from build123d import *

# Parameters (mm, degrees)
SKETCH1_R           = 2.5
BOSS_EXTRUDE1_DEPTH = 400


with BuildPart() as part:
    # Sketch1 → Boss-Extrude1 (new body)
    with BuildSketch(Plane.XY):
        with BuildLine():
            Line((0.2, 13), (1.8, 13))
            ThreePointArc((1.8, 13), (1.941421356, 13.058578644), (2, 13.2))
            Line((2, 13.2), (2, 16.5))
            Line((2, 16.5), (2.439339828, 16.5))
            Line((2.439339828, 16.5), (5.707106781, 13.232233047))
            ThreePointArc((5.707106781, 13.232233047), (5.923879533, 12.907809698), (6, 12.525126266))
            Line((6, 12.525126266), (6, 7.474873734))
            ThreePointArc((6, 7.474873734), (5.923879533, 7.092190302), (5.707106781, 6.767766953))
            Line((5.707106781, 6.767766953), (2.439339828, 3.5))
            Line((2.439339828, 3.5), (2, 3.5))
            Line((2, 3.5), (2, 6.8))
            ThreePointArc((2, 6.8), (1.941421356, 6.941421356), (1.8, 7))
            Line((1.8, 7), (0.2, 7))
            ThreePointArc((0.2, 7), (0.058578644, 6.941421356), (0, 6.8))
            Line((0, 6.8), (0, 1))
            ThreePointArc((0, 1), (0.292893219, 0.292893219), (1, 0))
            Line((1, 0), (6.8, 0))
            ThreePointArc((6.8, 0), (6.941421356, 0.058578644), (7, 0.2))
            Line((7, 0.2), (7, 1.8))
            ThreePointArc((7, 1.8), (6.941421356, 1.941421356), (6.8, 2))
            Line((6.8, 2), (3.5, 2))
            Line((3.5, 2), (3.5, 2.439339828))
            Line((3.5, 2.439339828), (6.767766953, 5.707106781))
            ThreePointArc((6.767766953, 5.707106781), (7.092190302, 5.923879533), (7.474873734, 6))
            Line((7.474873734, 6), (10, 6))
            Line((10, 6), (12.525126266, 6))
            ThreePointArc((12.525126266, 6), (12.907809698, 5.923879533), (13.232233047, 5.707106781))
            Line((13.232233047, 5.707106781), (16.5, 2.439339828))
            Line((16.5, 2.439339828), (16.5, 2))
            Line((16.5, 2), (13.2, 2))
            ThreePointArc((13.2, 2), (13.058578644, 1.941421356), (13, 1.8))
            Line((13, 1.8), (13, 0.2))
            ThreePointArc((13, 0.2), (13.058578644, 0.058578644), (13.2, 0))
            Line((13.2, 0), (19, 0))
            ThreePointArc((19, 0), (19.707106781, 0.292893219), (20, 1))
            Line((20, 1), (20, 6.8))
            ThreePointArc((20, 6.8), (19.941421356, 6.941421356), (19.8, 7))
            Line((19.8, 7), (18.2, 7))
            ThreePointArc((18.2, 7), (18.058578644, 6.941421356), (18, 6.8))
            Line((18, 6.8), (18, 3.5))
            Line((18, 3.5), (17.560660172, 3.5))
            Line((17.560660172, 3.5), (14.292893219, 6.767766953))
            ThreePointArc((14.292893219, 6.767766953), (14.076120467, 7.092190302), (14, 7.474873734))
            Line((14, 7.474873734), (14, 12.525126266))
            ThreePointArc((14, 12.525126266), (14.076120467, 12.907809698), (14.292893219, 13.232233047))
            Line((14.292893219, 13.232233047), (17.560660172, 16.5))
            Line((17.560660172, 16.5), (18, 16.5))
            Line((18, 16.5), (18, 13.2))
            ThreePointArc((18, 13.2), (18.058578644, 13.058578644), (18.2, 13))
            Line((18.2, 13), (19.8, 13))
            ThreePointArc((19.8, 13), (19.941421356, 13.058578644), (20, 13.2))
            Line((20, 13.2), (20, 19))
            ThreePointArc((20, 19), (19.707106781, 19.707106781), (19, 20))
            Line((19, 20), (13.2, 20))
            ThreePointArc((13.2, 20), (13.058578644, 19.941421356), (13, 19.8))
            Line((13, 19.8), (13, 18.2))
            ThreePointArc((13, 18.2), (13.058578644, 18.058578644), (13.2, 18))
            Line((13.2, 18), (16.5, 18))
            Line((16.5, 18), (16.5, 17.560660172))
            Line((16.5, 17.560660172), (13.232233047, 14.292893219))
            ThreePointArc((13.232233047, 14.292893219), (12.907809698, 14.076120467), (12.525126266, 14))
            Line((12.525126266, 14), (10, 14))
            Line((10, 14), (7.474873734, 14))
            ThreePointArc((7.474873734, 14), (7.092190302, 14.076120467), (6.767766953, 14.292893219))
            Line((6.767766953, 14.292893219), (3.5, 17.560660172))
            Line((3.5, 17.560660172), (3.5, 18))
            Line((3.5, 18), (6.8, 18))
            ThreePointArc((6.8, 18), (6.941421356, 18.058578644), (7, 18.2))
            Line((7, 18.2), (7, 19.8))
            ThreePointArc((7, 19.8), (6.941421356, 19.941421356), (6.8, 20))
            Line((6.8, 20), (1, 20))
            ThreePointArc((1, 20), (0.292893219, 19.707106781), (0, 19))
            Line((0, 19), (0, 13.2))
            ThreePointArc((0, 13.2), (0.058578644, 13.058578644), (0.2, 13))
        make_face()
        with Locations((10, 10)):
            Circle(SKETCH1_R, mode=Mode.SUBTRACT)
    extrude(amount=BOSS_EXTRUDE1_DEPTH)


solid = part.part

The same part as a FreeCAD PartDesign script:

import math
import FreeCAD as App
import Part
import Sketcher
Q = App.Units.Quantity

doc = App.newDocument("Part")
params = doc.addObject("Spreadsheet::Sheet", "Params")
for row, (alias, value) in enumerate([
    ("sketch1_diameter", "5 mm"),
    ("sketch1_radius", "1 mm"),
    ("sketch1_radius2", "0.2 mm"),
    ("sketch1_width", "1.6 mm"),
    ("sketch1_width2", "5.8 mm"),
    ("pad1_length", "400 mm"),
], start=1):
    params.set(f"A{row}", alias)
    params.set(f"B{row}", "=" + value)
    params.setAlias(f"B{row}", alias)

body = doc.addObject("PartDesign::Body", "Body")

# Sketch on XY plane
sketch1 = doc.addObject("Sketcher::SketchObject", "Sketch")
body.addObject(sketch1)
sketch1.AttachmentSupport = (doc.XY_Plane, [""])
sketch1.MapMode = "FlatFace"
sketch1.addGeometry([
    Part.LineSegment(App.Vector(0.2, 13, 0), App.Vector(1.8, 13, 0)),  # 0
    Part.ArcOfCircle(Part.Circle(App.Vector(1.8, 13.2, 0), App.Vector(0, 0, 1), 0.2), math.radians(-90), math.radians(0)),  # 1
    Part.LineSegment(App.Vector(2, 13.2, 0), App.Vector(2, 16.5, 0)),  # 2
    Part.LineSegment(App.Vector(2, 16.5, 0), App.Vector(2.44, 16.5, 0)),  # 3
    Part.LineSegment(App.Vector(2.44, 16.5, 0), App.Vector(5.71, 13.23, 0)),  # 4
    Part.ArcOfCircle(Part.Circle(App.Vector(5, 12.53, 0), App.Vector(0, 0, 1), 1), math.radians(0), math.radians(45)),  # 5
    Part.LineSegment(App.Vector(6, 12.53, 0), App.Vector(6, 7.47, 0)),  # 6
    Part.ArcOfCircle(Part.Circle(App.Vector(5, 7.47, 0), App.Vector(0, 0, 1), 1), math.radians(-45), math.radians(0)),  # 7
    Part.LineSegment(App.Vector(5.71, 6.77, 0), App.Vector(2.44, 3.5, 0)),  # 8
    Part.LineSegment(App.Vector(2.44, 3.5, 0), App.Vector(2, 3.5, 0)),  # 9
    Part.LineSegment(App.Vector(2, 3.5, 0), App.Vector(2, 6.8, 0)),  # 10
    Part.ArcOfCircle(Part.Circle(App.Vector(1.8, 6.8, 0), App.Vector(0, 0, 1), 0.2), math.radians(0), math.radians(90)),  # 11
    Part.LineSegment(App.Vector(1.8, 7, 0), App.Vector(0.2, 7, 0)),  # 12
    Part.ArcOfCircle(Part.Circle(App.Vector(0.2, 6.8, 0), App.Vector(0, 0, 1), 0.2), math.radians(90), math.radians(180)),  # 13
    Part.LineSegment(App.Vector(0, 6.8, 0), App.Vector(0, 1, 0)),  # 14
    Part.ArcOfCircle(Part.Circle(App.Vector(1, 1, 0), App.Vector(0, 0, 1), 1), math.radians(-180), math.radians(-90)),  # 15
    Part.LineSegment(App.Vector(1, 0, 0), App.Vector(6.8, 0, 0)),  # 16
    Part.ArcOfCircle(Part.Circle(App.Vector(6.8, 0.2, 0), App.Vector(0, 0, 1), 0.2), math.radians(-90), math.radians(0)),  # 17
    Part.LineSegment(App.Vector(7, 0.2, 0), App.Vector(7, 1.8, 0)),  # 18
    Part.ArcOfCircle(Part.Circle(App.Vector(6.8, 1.8, 0), App.Vector(0, 0, 1), 0.2), math.radians(0), math.radians(90)),  # 19
    Part.LineSegment(App.Vector(6.8, 2, 0), App.Vector(3.5, 2, 0)),  # 20
    Part.LineSegment(App.Vector(3.5, 2, 0), App.Vector(3.5, 2.44, 0)),  # 21
    Part.LineSegment(App.Vector(3.5, 2.44, 0), App.Vector(6.77, 5.71, 0)),  # 22
    Part.ArcOfCircle(Part.Circle(App.Vector(7.47, 5, 0), App.Vector(0, 0, 1), 1), math.radians(90), math.radians(135)),  # 23
    Part.LineSegment(App.Vector(7.47, 6, 0), App.Vector(12.53, 6, 0)),  # 24
    Part.ArcOfCircle(Part.Circle(App.Vector(12.53, 5, 0), App.Vector(0, 0, 1), 1), math.radians(45), math.radians(90)),  # 25
    Part.LineSegment(App.Vector(13.23, 5.71, 0), App.Vector(16.5, 2.44, 0)),  # 26
    Part.LineSegment(App.Vector(16.5, 2.44, 0), App.Vector(16.5, 2, 0)),  # 27
    Part.LineSegment(App.Vector(16.5, 2, 0), App.Vector(13.2, 2, 0)),  # 28
    Part.ArcOfCircle(Part.Circle(App.Vector(13.2, 1.8, 0), App.Vector(0, 0, 1), 0.2), math.radians(90), math.radians(180)),  # 29
    Part.LineSegment(App.Vector(13, 1.8, 0), App.Vector(13, 0.2, 0)),  # 30
    Part.ArcOfCircle(Part.Circle(App.Vector(13.2, 0.2, 0), App.Vector(0, 0, 1), 0.2), math.radians(-180), math.radians(-90)),  # 31
    Part.LineSegment(App.Vector(13.2, 0, 0), App.Vector(19, 0, 0)),  # 32
    Part.ArcOfCircle(Part.Circle(App.Vector(19, 1, 0), App.Vector(0, 0, 1), 1), math.radians(-90), math.radians(0)),  # 33
    Part.LineSegment(App.Vector(20, 1, 0), App.Vector(20, 6.8, 0)),  # 34
    Part.ArcOfCircle(Part.Circle(App.Vector(19.8, 6.8, 0), App.Vector(0, 0, 1), 0.2), math.radians(0), math.radians(90)),  # 35
    Part.LineSegment(App.Vector(19.8, 7, 0), App.Vector(18.2, 7, 0)),  # 36
    Part.ArcOfCircle(Part.Circle(App.Vector(18.2, 6.8, 0), App.Vector(0, 0, 1), 0.2), math.radians(90), math.radians(180)),  # 37
    Part.LineSegment(App.Vector(18, 6.8, 0), App.Vector(18, 3.5, 0)),  # 38
    Part.LineSegment(App.Vector(18, 3.5, 0), App.Vector(17.56, 3.5, 0)),  # 39
    Part.LineSegment(App.Vector(17.56, 3.5, 0), App.Vector(14.29, 6.77, 0)),  # 40
    Part.ArcOfCircle(Part.Circle(App.Vector(15, 7.47, 0), App.Vector(0, 0, 1), 1), math.radians(180), math.radians(225)),  # 41
    Part.LineSegment(App.Vector(14, 7.47, 0), App.Vector(14, 12.53, 0)),  # 42
    Part.ArcOfCircle(Part.Circle(App.Vector(15, 12.53, 0), App.Vector(0, 0, 1), 1), math.radians(135), math.radians(180)),  # 43
    Part.LineSegment(App.Vector(14.29, 13.23, 0), App.Vector(17.56, 16.5, 0)),  # 44
    Part.LineSegment(App.Vector(17.56, 16.5, 0), App.Vector(18, 16.5, 0)),  # 45
    Part.LineSegment(App.Vector(18, 16.5, 0), App.Vector(18, 13.2, 0)),  # 46
    Part.ArcOfCircle(Part.Circle(App.Vector(18.2, 13.2, 0), App.Vector(0, 0, 1), 0.2), math.radians(-180), math.radians(-90)),  # 47
    Part.LineSegment(App.Vector(18.2, 13, 0), App.Vector(19.8, 13, 0)),  # 48
    Part.ArcOfCircle(Part.Circle(App.Vector(19.8, 13.2, 0), App.Vector(0, 0, 1), 0.2), math.radians(-90), math.radians(0)),  # 49
    Part.LineSegment(App.Vector(20, 13.2, 0), App.Vector(20, 19, 0)),  # 50
    Part.ArcOfCircle(Part.Circle(App.Vector(19, 19, 0), App.Vector(0, 0, 1), 1), math.radians(0), math.radians(90)),  # 51
    Part.LineSegment(App.Vector(19, 20, 0), App.Vector(13.2, 20, 0)),  # 52
    Part.ArcOfCircle(Part.Circle(App.Vector(13.2, 19.8, 0), App.Vector(0, 0, 1), 0.2), math.radians(90), math.radians(180)),  # 53
    Part.LineSegment(App.Vector(13, 19.8, 0), App.Vector(13, 18.2, 0)),  # 54
    Part.ArcOfCircle(Part.Circle(App.Vector(13.2, 18.2, 0), App.Vector(0, 0, 1), 0.2), math.radians(-180), math.radians(-90)),  # 55
    Part.LineSegment(App.Vector(13.2, 18, 0), App.Vector(16.5, 18, 0)),  # 56
    Part.LineSegment(App.Vector(16.5, 18, 0), App.Vector(16.5, 17.56, 0)),  # 57
    Part.LineSegment(App.Vector(16.5, 17.56, 0), App.Vector(13.23, 14.29, 0)),  # 58
    Part.ArcOfCircle(Part.Circle(App.Vector(12.53, 15, 0), App.Vector(0, 0, 1), 1), math.radians(-90), math.radians(-45)),  # 59
    Part.LineSegment(App.Vector(12.53, 14, 0), App.Vector(7.47, 14, 0)),  # 60
    Part.ArcOfCircle(Part.Circle(App.Vector(7.47, 15, 0), App.Vector(0, 0, 1), 1), math.radians(-135), math.radians(-90)),  # 61
    Part.LineSegment(App.Vector(6.77, 14.29, 0), App.Vector(3.5, 17.56, 0)),  # 62
    Part.LineSegment(App.Vector(3.5, 17.56, 0), App.Vector(3.5, 18, 0)),  # 63
    Part.LineSegment(App.Vector(3.5, 18, 0), App.Vector(6.8, 18, 0)),  # 64
    Part.ArcOfCircle(Part.Circle(App.Vector(6.8, 18.2, 0), App.Vector(0, 0, 1), 0.2), math.radians(-90), math.radians(0)),  # 65
    Part.LineSegment(App.Vector(7, 18.2, 0), App.Vector(7, 19.8, 0)),  # 66
    Part.ArcOfCircle(Part.Circle(App.Vector(6.8, 19.8, 0), App.Vector(0, 0, 1), 0.2), math.radians(0), math.radians(90)),  # 67
    Part.LineSegment(App.Vector(6.8, 20, 0), App.Vector(1, 20, 0)),  # 68
    Part.ArcOfCircle(Part.Circle(App.Vector(1, 19, 0), App.Vector(0, 0, 1), 1), math.radians(90), math.radians(180)),  # 69
    Part.LineSegment(App.Vector(0, 19, 0), App.Vector(0, 13.2, 0)),  # 70
    Part.ArcOfCircle(Part.Circle(App.Vector(0.2, 13.2, 0), App.Vector(0, 0, 1), 0.2), math.radians(-180), math.radians(-90)),  # 71
    Part.Circle(App.Vector(10, 10, 0), App.Vector(0, 0, 1), 2.5),  # 72
], False)
sketch1.addConstraint([
    Sketcher.Constraint("Tangent", 0, 2, 1, 1),
    Sketcher.Constraint("Tangent", 1, 2, 2, 1),
    Sketcher.Constraint("Coincident", 2, 2, 3, 1),
    Sketcher.Constraint("Coincident", 3, 2, 4, 1),
    Sketcher.Constraint("Tangent", 4, 2, 5, 2),
    Sketcher.Constraint("Tangent", 5, 1, 6, 1),
    Sketcher.Constraint("Tangent", 6, 2, 7, 2),
    Sketcher.Constraint("Tangent", 7, 1, 8, 1),
    Sketcher.Constraint("Coincident", 8, 2, 9, 1),
    Sketcher.Constraint("Coincident", 9, 2, 10, 1),
    Sketcher.Constraint("Tangent", 10, 2, 11, 1),
    Sketcher.Constraint("Tangent", 11, 2, 12, 1),
    Sketcher.Constraint("Tangent", 12, 2, 13, 1),
    Sketcher.Constraint("Tangent", 13, 2, 14, 1),
    Sketcher.Constraint("Tangent", 14, 2, 15, 1),
    Sketcher.Constraint("Tangent", 15, 2, 16, 1),
    Sketcher.Constraint("Tangent", 16, 2, 17, 1),
    Sketcher.Constraint("Tangent", 17, 2, 18, 1),
    Sketcher.Constraint("Tangent", 18, 2, 19, 1),
    Sketcher.Constraint("Tangent", 19, 2, 20, 1),
    Sketcher.Constraint("Coincident", 20, 2, 21, 1),
    Sketcher.Constraint("Coincident", 21, 2, 22, 1),
    Sketcher.Constraint("Tangent", 22, 2, 23, 2),
    Sketcher.Constraint("Tangent", 23, 1, 24, 1),
    Sketcher.Constraint("Tangent", 24, 2, 25, 2),
    Sketcher.Constraint("Tangent", 25, 1, 26, 1),
    Sketcher.Constraint("Coincident", 26, 2, 27, 1),
    Sketcher.Constraint("Coincident", 27, 2, 28, 1),
    Sketcher.Constraint("Tangent", 28, 2, 29, 1),
    Sketcher.Constraint("Tangent", 29, 2, 30, 1),
    Sketcher.Constraint("Tangent", 30, 2, 31, 1),
    Sketcher.Constraint("Tangent", 31, 2, 32, 1),
    Sketcher.Constraint("Tangent", 32, 2, 33, 1),
    Sketcher.Constraint("Tangent", 33, 2, 34, 1),
    Sketcher.Constraint("Tangent", 34, 2, 35, 1),
    Sketcher.Constraint("Tangent", 35, 2, 36, 1),
    Sketcher.Constraint("Tangent", 36, 2, 37, 1),
    Sketcher.Constraint("Tangent", 37, 2, 38, 1),
    Sketcher.Constraint("Coincident", 38, 2, 39, 1),
    Sketcher.Constraint("Coincident", 39, 2, 40, 1),
    Sketcher.Constraint("Tangent", 40, 2, 41, 2),
    Sketcher.Constraint("Tangent", 41, 1, 42, 1),
    Sketcher.Constraint("Tangent", 42, 2, 43, 2),
    Sketcher.Constraint("Tangent", 43, 1, 44, 1),
    Sketcher.Constraint("Coincident", 44, 2, 45, 1),
    Sketcher.Constraint("Coincident", 45, 2, 46, 1),
    Sketcher.Constraint("Tangent", 46, 2, 47, 1),
    Sketcher.Constraint("Tangent", 47, 2, 48, 1),
    Sketcher.Constraint("Tangent", 48, 2, 49, 1),
    Sketcher.Constraint("Tangent", 49, 2, 50, 1),
    Sketcher.Constraint("Tangent", 50, 2, 51, 1),
    Sketcher.Constraint("Tangent", 51, 2, 52, 1),
    Sketcher.Constraint("Tangent", 52, 2, 53, 1),
    Sketcher.Constraint("Tangent", 53, 2, 54, 1),
    Sketcher.Constraint("Tangent", 54, 2, 55, 1),
    Sketcher.Constraint("Tangent", 55, 2, 56, 1),
    Sketcher.Constraint("Coincident", 56, 2, 57, 1),
    Sketcher.Constraint("Coincident", 57, 2, 58, 1),
    Sketcher.Constraint("Tangent", 58, 2, 59, 2),
    Sketcher.Constraint("Tangent", 59, 1, 60, 1),
    Sketcher.Constraint("Tangent", 60, 2, 61, 2),
    Sketcher.Constraint("Tangent", 61, 1, 62, 1),
    Sketcher.Constraint("Coincident", 62, 2, 63, 1),
    Sketcher.Constraint("Coincident", 63, 2, 64, 1),
    Sketcher.Constraint("Tangent", 64, 2, 65, 1),
    Sketcher.Constraint("Tangent", 65, 2, 66, 1),
    Sketcher.Constraint("Tangent", 66, 2, 67, 1),
    Sketcher.Constraint("Tangent", 67, 2, 68, 1),
    Sketcher.Constraint("Tangent", 68, 2, 69, 1),
    Sketcher.Constraint("Tangent", 69, 2, 70, 1),
    Sketcher.Constraint("Tangent", 70, 2, 71, 1),
    Sketcher.Constraint("Tangent", 71, 2, 0, 1),
    Sketcher.Constraint("Horizontal", 0),
    Sketcher.Constraint("Vertical", 2),
    Sketcher.Constraint("Horizontal", 3),
    Sketcher.Constraint("Vertical", 6),
    Sketcher.Constraint("Horizontal", 9),
    Sketcher.Constraint("Vertical", 10),
    Sketcher.Constraint("Horizontal", 12),
    Sketcher.Constraint("Vertical", 14),
    Sketcher.Constraint("Horizontal", 16),
    Sketcher.Constraint("Vertical", 18),
    Sketcher.Constraint("Horizontal", 20),
    Sketcher.Constraint("Vertical", 21),
    Sketcher.Constraint("Horizontal", 24),
    Sketcher.Constraint("Vertical", 27),
    Sketcher.Constraint("Horizontal", 28),
    Sketcher.Constraint("Vertical", 30),
    Sketcher.Constraint("Horizontal", 32),
    Sketcher.Constraint("Vertical", 34),
    Sketcher.Constraint("Horizontal", 36),
    Sketcher.Constraint("Vertical", 38),
    Sketcher.Constraint("Horizontal", 39),
    Sketcher.Constraint("Vertical", 42),
    Sketcher.Constraint("Horizontal", 45),
    Sketcher.Constraint("Vertical", 46),
    Sketcher.Constraint("Horizontal", 48),
    Sketcher.Constraint("Vertical", 50),
    Sketcher.Constraint("Horizontal", 52),
    Sketcher.Constraint("Vertical", 54),
    Sketcher.Constraint("Horizontal", 56),
    Sketcher.Constraint("Vertical", 57),
    Sketcher.Constraint("Horizontal", 60),
    Sketcher.Constraint("Vertical", 63),
    Sketcher.Constraint("Horizontal", 64),
    Sketcher.Constraint("Vertical", 66),
    Sketcher.Constraint("Horizontal", 68),
    Sketcher.Constraint("Vertical", 70),
    Sketcher.Constraint("Equal", 5, 7),
    Sketcher.Constraint("Equal", 1, 11),
    Sketcher.Constraint("Equal", 11, 13),
    Sketcher.Constraint("Equal", 7, 15),
    Sketcher.Constraint("Equal", 13, 17),
    Sketcher.Constraint("Equal", 17, 19),
    Sketcher.Constraint("Equal", 15, 23),
    Sketcher.Constraint("Equal", 23, 25),
    Sketcher.Constraint("Equal", 19, 29),
    Sketcher.Constraint("Equal", 29, 31),
    Sketcher.Constraint("Equal", 25, 33),
    Sketcher.Constraint("Equal", 31, 35),
    Sketcher.Constraint("Equal", 35, 37),
    Sketcher.Constraint("Equal", 33, 41),
    Sketcher.Constraint("Equal", 41, 43),
    Sketcher.Constraint("Equal", 37, 47),
    Sketcher.Constraint("Equal", 47, 49),
    Sketcher.Constraint("Equal", 43, 51),
    Sketcher.Constraint("Equal", 49, 53),
    Sketcher.Constraint("Equal", 53, 55),
    Sketcher.Constraint("Equal", 51, 59),
    Sketcher.Constraint("Equal", 59, 61),
    Sketcher.Constraint("Equal", 55, 65),
    Sketcher.Constraint("Equal", 65, 67),
    Sketcher.Constraint("Equal", 61, 69),
    Sketcher.Constraint("Equal", 67, 71),
    Sketcher.Constraint("PointOnObject", 13, 2, -2),
    Sketcher.Constraint("PointOnObject", 15, 2, -1),
    Sketcher.Constraint("PointOnObject", 31, 2, -1),
    Sketcher.Constraint("PointOnObject", 69, 2, -2),
    Sketcher.Constraint("Perpendicular", 4, 8),
    Sketcher.Constraint("Parallel", 8, 22),
    Sketcher.Constraint("Perpendicular", 22, 26),
    Sketcher.Constraint("Parallel", 26, 40),
    Sketcher.Constraint("Perpendicular", 40, 44),
    Sketcher.Constraint("Parallel", 44, 58),
    Sketcher.Constraint("Perpendicular", 58, 62),
    Sketcher.Constraint("Horizontal", 19, 3, 29, 3),
    Sketcher.Constraint("Horizontal", 13, 3, 35, 3),
    Sketcher.Constraint("Horizontal", 7, 3, 41, 3),
    Sketcher.Constraint("Horizontal", 5, 3, 43, 3),
    Sketcher.Constraint("Horizontal", 1, 3, 47, 3),
    Sketcher.Constraint("Horizontal", 55, 3, 65, 3),
    Sketcher.Constraint("Horizontal", 53, 3, 67, 3),
    Sketcher.Constraint("Horizontal", 22, 2, 25, 1),
    Sketcher.Constraint("Horizontal", 21, 2, 26, 2),
    Sketcher.Constraint("Horizontal", 9, 2, 38, 2),
    Sketcher.Constraint("Horizontal", 3, 2, 44, 2),
    Sketcher.Constraint("Horizontal", 57, 2, 62, 2),
    Sketcher.Constraint("Vertical", 1, 3, 11, 3),
    Sketcher.Constraint("Vertical", 37, 3, 47, 3),
    Sketcher.Constraint("Vertical", 35, 3, 49, 3),
    Sketcher.Constraint("Vertical", 31, 3, 53, 3),
    Sketcher.Constraint("Vertical", 25, 3, 59, 3),
    Sketcher.Constraint("Vertical", 23, 3, 61, 3),
    Sketcher.Constraint("Vertical", 19, 3, 65, 3),
    Sketcher.Constraint("Vertical", 3, 2, 8, 2),
    Sketcher.Constraint("Vertical", 27, 2, 56, 2),
    Sketcher.Constraint("Equal", 20, 28),
    Sketcher.Constraint("Equal", 16, 32),
    Sketcher.Constraint("Equal", 12, 36),
    Sketcher.Constraint("Equal", 9, 39),
    Sketcher.Constraint("Equal", 64, 2),
    Sketcher.Constraint("Equal", 60, 6),
    Sketcher.Constraint("Equal", 2, 10),
    Sketcher.Constraint("Equal", 68, 14),
    Sketcher.Constraint("Equal", 48, 18),
    Sketcher.Constraint("Equal", 45, 21),
    Sketcher.Constraint("Equal", 34, 50),
    Sketcher.Constraint("Equal", 30, 54),
    Sketcher.Constraint("Equal", 27, 57),
    Sketcher.Constraint("Equal", 8, 22),
    Sketcher.Constraint("Diameter", 72, Q("5 mm")),
    Sketcher.Constraint("Radius", 5, Q("1 mm")),
    Sketcher.Constraint("Radius", 1, Q("0.2 mm")),
    Sketcher.Constraint("DistanceX", 0, 1, 0, 2, Q("1.6 mm")),
    Sketcher.Constraint("DistanceX", 16, 1, 16, 2, Q("5.8 mm")),
    Sketcher.Constraint("DistanceX", 20, 2, 20, 1, Q("3.3 mm")),
    Sketcher.Constraint("DistanceX", -1, 1, 5, 3, Q("5 mm")),
    Sketcher.Constraint("DistanceX", -1, 1, 33, 3, Q("19 mm")),
    Sketcher.Constraint("DistanceX", -1, 1, 72, 3, Q("10 mm")),
    Sketcher.Constraint("DistanceY", -1, 1, 72, 3, Q("10 mm")),
    Sketcher.Constraint("DistanceX", 3, 1, 3, 2, Q("0.43934 mm")),
])
sketch1.setExpression("Constraints[180]", "Params.sketch1_diameter")
sketch1.setExpression("Constraints[181]", "Params.sketch1_radius")
sketch1.setExpression("Constraints[182]", "Params.sketch1_radius2")
sketch1.setExpression("Constraints[183]", "Params.sketch1_width")
sketch1.setExpression("Constraints[184]", "Params.sketch1_width2")
pad1 = doc.addObject("PartDesign::Pad", "Pad")
body.addObject(pad1)
pad1.Profile = sketch1
pad1.setExpression("Length", "Params.pad1_length")

doc.recompute()
